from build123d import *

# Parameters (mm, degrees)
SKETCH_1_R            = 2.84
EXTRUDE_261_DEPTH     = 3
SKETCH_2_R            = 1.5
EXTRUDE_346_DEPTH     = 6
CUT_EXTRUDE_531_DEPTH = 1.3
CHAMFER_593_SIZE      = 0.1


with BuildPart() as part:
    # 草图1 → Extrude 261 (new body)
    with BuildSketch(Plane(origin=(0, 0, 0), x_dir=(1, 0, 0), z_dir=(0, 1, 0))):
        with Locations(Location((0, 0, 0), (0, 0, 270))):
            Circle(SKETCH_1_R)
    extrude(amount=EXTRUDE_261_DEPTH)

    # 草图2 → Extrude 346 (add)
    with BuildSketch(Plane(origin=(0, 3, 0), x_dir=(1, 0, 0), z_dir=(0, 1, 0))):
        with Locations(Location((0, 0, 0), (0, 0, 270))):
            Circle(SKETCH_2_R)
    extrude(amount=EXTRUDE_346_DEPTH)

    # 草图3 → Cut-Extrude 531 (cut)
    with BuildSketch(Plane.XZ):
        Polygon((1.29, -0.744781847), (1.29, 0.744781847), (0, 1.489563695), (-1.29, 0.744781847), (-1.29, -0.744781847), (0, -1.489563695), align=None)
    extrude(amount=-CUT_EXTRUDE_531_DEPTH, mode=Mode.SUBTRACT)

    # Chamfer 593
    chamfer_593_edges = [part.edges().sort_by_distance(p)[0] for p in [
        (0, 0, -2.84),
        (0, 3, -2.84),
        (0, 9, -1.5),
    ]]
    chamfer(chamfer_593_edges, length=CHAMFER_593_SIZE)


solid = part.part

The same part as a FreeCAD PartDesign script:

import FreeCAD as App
import Part
import Sketcher

V = App.Vector
Q = App.Units.Quantity


def edges_at(feature, points):
    """Names of the edges that pass closest to the given points."""
    edges = feature.Shape.Edges
    near = lambda p: min(range(len(edges)), key=lambda i: edges[i].distToShape(Part.Vertex(*p))[0])
    return sorted({f"Edge{near(p) + 1}" for p in points})


def add_polygon(sketch, points):
    """Adds a closed chain of lines whose ends are joined by coincident constraints."""
    first, n = sketch.GeometryCount, len(points)
    for a, b in zip(points, points[1:] + points[:1]):
        sketch.addGeometry(Part.LineSegment(App.Vector(*a, 0), App.Vector(*b, 0)), False)
    for i in range(n):
        sketch.addConstraint(Sketcher.Constraint("Coincident", first + i, 2, first + (i + 1) % n, 1))

doc = App.newDocument("Part")
body = doc.addObject("PartDesign::Body", "Body")

sketch1 = body.newObject("Sketcher::SketchObject", "Sketch")
sketch1.AttachmentSupport = (doc.getObject("XZ_Plane"), [""])
sketch1.MapMode = "FlatFace"
sketch1.addGeometry(Part.Circle(V(0, 0, 0), V(0, 0, 1), 2.8), False)
sketch1.addConstraint([
    Sketcher.Constraint("Coincident", 0, 3, -1, 1),
    Sketcher.Constraint("Diameter", 0, 5.68),
])
pad1 = body.newObject("PartDesign::Pad", "Pad")
pad1.Profile = sketch1
pad1.Length = 3
pad1.Reversed = True

sketch2 = body.newObject("Sketcher::SketchObject", "Sketch001")
sketch2.AttachmentSupport = (doc.getObject("XZ_Plane"), [""])
sketch2.MapMode = "FlatFace"
sketch2.AttachmentOffset = App.Placement(V(0, 0, -3), App.Rotation())
sketch2.addGeometry(Part.Circle(V(0, 0, 0), V(0, 0, 1), 1.5), False)
sketch2.addConstraint([
    Sketcher.Constraint("Coincident", 0, 3, -1, 1),
    Sketcher.Constraint("Diameter", 0, 3.0),
])
pad2 = body.newObject("PartDesign::Pad", "Pad001")
pad2.Profile = sketch2
pad2.Length = 6
pad2.Reversed = True

sketch3 = body.newObject("Sketcher::SketchObject", "Sketch002")
sketch3.AttachmentSupport = (doc.getObject("XZ_Plane"), [""])
sketch3.MapMode = "FlatFace"
add_polygon(sketch3, [(1.3, -0.7), (1.3, 0.7), (0, 1.5), (-1.3, 0.7), (-1.3, -0.7), (0, -1.5)])
sketch3.addConstraint([
    Sketcher.Constraint("Vertical", 0),
    Sketcher.Constraint("Vertical", 3),
    Sketcher.Constraint("Symmetric", 0, 2, 3, 2, -1, 1),
    Sketcher.Constraint("Symmetric", 1, 2, 4, 2, -1, 1),
    Sketcher.Constraint("PointOnObject", 1, 2, -2),
    Sketcher.Constraint("Parallel", 2, 5),
    Sketcher.Constraint("Horizontal", 0, 2, 2, 2),
    Sketcher.Constraint("Angle", 1, Q("150 deg")),
    Sketcher.Constraint("DistanceX", -1, 1, 0, 2, 1.29),
    Sketcher.Constraint("DistanceY", 0, 1, 0, 2, 1.489564),
])
pocket1 = body.newObject("PartDesign::Pocket", "Pocket")
pocket1.Profile = sketch3
pocket1.Length = 1.3
doc.recompute()

chamfer = body.newObject("PartDesign::Chamfer", "Chamfer")
chamfer.Base = (pocket1, edges_at(pocket1, [(0, 0, -2.84), (0, 3, -2.84), (0, 9, -1.5)]))
chamfer.Size = 0.1

doc.recompute()
